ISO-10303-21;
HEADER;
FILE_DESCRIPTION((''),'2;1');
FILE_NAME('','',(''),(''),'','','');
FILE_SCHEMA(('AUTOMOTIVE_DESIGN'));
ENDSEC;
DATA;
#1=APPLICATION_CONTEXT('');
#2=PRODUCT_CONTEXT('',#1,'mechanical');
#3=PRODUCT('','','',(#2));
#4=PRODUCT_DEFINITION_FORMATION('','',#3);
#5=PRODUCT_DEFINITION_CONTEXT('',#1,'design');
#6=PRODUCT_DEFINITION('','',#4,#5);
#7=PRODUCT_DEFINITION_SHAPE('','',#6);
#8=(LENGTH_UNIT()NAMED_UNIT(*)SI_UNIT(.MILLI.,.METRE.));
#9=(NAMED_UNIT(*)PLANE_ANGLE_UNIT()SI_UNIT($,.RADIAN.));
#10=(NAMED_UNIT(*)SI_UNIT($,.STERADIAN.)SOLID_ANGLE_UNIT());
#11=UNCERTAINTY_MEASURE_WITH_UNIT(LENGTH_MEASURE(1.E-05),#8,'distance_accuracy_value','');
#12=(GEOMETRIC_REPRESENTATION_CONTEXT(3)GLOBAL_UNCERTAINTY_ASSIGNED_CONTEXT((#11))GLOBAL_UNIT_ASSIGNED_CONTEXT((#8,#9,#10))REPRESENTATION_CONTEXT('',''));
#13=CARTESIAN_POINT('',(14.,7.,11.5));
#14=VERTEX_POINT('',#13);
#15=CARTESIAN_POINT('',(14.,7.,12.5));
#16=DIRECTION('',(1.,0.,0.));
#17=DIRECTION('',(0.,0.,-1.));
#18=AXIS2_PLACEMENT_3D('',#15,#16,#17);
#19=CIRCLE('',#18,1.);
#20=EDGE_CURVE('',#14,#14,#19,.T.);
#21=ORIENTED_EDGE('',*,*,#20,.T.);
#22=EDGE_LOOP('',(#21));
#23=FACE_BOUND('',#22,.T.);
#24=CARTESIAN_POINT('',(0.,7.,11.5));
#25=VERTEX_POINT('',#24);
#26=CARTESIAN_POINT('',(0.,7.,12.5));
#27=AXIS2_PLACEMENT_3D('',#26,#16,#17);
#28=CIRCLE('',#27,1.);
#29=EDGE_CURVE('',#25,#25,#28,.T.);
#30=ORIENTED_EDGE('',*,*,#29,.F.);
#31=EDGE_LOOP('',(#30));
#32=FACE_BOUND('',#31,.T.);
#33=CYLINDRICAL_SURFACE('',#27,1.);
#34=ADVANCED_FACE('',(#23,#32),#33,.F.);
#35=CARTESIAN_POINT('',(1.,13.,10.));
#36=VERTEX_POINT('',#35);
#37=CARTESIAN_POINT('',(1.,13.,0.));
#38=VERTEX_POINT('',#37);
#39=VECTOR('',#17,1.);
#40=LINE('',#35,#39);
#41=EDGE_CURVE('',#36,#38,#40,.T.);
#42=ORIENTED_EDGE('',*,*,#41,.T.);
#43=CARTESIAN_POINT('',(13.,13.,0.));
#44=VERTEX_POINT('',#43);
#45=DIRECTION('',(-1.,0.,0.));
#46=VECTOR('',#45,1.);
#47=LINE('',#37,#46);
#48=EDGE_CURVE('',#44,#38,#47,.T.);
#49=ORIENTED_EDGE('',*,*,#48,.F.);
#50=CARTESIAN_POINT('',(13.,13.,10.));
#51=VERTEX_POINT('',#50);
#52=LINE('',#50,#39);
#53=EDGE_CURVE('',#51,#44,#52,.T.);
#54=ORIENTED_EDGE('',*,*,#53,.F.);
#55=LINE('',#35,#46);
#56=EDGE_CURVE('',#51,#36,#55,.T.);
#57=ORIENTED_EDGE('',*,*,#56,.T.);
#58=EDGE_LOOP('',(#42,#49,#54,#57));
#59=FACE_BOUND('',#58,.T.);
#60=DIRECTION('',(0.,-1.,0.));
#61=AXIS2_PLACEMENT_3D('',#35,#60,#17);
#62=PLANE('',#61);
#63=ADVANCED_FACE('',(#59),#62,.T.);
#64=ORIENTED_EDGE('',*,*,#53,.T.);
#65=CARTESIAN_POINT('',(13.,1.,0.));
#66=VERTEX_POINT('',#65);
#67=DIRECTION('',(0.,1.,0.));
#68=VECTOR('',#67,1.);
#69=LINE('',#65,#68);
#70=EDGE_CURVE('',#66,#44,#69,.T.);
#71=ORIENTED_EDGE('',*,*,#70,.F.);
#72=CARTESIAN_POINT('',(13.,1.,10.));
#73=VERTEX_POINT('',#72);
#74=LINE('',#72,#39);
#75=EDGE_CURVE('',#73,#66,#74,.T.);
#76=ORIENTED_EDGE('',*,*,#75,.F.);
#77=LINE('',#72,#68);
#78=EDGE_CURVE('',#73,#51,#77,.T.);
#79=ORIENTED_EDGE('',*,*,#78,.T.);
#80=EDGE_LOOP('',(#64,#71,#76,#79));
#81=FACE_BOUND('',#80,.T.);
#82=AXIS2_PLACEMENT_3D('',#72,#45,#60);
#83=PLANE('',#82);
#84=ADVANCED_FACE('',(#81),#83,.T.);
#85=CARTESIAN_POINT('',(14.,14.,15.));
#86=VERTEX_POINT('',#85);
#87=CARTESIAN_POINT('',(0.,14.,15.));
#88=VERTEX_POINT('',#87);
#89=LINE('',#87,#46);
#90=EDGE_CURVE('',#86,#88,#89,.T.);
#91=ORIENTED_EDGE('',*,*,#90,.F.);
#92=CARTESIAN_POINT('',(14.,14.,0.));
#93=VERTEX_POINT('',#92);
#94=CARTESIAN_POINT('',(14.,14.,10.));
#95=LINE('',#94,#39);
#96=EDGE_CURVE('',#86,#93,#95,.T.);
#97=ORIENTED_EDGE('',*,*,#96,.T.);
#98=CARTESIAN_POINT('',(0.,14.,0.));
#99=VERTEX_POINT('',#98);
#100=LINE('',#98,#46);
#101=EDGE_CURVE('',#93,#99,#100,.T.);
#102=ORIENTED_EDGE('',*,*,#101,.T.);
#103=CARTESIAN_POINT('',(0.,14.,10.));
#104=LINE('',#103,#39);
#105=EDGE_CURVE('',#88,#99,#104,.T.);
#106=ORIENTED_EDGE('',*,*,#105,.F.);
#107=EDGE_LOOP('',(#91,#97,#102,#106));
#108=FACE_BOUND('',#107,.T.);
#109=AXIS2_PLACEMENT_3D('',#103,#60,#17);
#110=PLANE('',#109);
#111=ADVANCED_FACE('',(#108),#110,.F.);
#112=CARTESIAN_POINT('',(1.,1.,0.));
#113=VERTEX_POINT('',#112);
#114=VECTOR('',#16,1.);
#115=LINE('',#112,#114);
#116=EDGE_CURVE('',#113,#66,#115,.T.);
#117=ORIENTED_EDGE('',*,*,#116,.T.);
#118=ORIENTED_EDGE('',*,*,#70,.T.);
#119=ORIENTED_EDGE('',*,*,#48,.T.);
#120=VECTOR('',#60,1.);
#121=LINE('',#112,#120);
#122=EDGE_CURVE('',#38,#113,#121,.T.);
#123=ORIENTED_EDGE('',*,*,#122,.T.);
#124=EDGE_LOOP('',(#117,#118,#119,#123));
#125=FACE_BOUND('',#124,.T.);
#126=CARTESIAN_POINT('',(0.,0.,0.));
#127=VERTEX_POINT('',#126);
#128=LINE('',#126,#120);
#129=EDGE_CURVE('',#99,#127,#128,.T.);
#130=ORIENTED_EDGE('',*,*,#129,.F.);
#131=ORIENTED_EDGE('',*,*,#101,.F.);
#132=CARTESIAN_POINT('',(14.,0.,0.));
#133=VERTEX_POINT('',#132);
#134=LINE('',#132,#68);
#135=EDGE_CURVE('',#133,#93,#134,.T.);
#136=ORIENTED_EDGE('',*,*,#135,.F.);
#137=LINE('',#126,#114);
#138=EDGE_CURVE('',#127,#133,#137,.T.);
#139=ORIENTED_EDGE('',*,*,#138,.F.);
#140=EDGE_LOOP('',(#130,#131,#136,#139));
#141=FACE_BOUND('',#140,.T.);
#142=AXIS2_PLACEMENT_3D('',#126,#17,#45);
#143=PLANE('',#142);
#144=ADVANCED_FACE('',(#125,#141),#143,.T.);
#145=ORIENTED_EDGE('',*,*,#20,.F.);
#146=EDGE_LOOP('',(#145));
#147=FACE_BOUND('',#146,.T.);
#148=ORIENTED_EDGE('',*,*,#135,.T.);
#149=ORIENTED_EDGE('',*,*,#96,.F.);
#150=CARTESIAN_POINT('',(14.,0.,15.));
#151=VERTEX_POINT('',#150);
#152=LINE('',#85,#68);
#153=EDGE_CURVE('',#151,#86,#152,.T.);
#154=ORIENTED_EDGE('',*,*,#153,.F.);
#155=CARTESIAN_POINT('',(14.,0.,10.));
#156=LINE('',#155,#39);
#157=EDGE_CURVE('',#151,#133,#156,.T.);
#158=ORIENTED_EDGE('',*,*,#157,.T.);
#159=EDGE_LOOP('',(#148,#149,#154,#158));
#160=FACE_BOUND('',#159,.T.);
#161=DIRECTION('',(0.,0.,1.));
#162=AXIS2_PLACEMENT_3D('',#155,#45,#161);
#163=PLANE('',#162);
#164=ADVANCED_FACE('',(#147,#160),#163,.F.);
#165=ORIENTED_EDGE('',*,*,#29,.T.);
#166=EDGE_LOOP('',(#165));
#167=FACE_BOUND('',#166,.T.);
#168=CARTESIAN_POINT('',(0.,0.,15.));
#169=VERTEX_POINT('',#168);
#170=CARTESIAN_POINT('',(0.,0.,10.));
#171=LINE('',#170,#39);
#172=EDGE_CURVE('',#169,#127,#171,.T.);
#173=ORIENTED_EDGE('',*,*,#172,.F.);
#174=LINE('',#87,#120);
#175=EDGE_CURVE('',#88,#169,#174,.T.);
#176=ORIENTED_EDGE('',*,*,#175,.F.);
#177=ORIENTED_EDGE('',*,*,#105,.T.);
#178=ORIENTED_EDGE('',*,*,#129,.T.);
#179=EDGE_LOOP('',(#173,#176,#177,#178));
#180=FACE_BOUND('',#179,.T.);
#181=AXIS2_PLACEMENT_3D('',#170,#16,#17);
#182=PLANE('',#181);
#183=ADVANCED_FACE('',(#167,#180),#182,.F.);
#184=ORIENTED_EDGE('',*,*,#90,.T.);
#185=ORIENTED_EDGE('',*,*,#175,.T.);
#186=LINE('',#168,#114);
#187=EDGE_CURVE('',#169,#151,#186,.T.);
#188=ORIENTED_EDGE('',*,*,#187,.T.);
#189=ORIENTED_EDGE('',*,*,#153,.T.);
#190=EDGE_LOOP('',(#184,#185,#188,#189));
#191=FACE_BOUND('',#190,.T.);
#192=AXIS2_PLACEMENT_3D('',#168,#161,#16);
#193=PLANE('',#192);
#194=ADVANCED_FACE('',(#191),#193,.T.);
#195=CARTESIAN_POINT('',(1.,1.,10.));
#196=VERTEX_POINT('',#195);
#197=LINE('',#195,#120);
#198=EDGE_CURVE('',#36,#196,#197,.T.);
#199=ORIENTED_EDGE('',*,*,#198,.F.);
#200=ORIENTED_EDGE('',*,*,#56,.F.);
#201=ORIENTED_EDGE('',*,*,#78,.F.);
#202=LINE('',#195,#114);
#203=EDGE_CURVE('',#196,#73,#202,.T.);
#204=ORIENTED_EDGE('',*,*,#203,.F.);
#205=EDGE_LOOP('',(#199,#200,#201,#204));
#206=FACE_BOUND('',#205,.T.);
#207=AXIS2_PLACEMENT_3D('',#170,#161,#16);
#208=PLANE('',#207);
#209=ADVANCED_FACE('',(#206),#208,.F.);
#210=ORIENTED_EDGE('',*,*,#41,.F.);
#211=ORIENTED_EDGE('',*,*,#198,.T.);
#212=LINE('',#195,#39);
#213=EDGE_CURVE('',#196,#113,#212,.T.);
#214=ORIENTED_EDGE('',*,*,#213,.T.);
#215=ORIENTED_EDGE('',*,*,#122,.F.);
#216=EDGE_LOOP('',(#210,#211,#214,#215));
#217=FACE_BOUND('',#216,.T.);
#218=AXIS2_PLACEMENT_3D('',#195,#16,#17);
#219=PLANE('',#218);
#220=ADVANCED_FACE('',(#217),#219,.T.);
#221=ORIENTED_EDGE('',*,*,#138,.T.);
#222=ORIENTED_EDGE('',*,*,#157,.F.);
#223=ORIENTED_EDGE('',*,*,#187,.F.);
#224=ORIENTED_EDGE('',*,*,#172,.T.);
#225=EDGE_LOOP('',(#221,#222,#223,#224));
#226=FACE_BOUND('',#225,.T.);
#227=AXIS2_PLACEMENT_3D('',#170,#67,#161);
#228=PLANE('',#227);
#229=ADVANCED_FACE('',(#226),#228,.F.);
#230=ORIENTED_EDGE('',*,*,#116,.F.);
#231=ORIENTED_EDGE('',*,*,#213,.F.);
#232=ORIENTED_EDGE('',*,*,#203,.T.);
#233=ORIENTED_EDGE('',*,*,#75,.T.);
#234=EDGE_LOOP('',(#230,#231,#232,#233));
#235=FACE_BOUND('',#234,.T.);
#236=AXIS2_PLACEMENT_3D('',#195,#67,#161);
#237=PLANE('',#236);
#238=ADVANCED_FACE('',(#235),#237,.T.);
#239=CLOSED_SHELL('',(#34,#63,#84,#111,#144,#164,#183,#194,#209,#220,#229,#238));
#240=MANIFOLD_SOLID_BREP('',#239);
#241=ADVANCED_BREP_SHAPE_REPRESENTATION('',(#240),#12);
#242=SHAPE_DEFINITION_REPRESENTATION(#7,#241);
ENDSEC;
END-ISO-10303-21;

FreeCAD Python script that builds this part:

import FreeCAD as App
import Part
import Sketcher
Q = App.Units.Quantity


def add_polygon(sketch, points):
    """Adds a closed chain of lines whose ends are joined by coincident constraints."""
    first, n = sketch.GeometryCount, len(points)
    for a, b in zip(points, points[1:] + points[:1]):
        sketch.addGeometry(Part.LineSegment(App.Vector(*a, 0), App.Vector(*b, 0)), False)
    for i in range(n):
        sketch.addConstraint(Sketcher.Constraint("Coincident", first + i, 2, first + (i + 1) % n, 1))

doc = App.newDocument("Part")
params = doc.addObject("Spreadsheet::Sheet", "Params")
for row, (alias, value) in enumerate([
    ("sketch1_width", "14 mm"),
    ("sketch1_width2", "12 mm"),
    ("pad1_length", "10 mm"),
    ("sketch2_width", "14 mm"),
    ("pad2_length", "5 mm"),
    ("sketch3_diameter", "2 mm"),
    ("pocket1_length", "14 mm"),
], start=1):
    params.set(f"A{row}", alias)
    params.set(f"B{row}", "=" + value)
    params.setAlias(f"B{row}", alias)

body = doc.addObject("PartDesign::Body", "Body")

# Sketch on XY plane
sketch1 = body.newObject("Sketcher::SketchObject", "Sketch")
sketch1.AttachmentSupport = (doc.getObject("XY_Plane"), [""])
sketch1.MapMode = "FlatFace"
add_polygon(sketch1, [(0, 14), (0, 0), (14, 0), (14, 14)])  # lines 0-3
add_polygon(sketch1, [(13, 1), (1, 1), (1, 13), (13, 13)])  # lines 4-7
sketch1.addConstraint([
    Sketcher.Constraint("Vertical", 0),
    Sketcher.Constraint("Horizontal", 1),
    Sketcher.Constraint("Vertical", 2),
    Sketcher.Constraint("Horizontal", 3),
    Sketcher.Constraint("Horizontal", 4),
    Sketcher.Constraint("Vertical", 5),
    Sketcher.Constraint("Horizontal", 6),
    Sketcher.Constraint("Vertical", 7),
    Sketcher.Constraint("Coincident", 0, 2, -1, 1),
    Sketcher.Constraint("Equal", 3, 0),
    Sketcher.Constraint("Equal", 6, 5),
    Sketcher.Constraint("DistanceX", 1, 1, 1, 2, Q("14 mm")),
    Sketcher.Constraint("DistanceX", 4, 2, 4, 1, Q("12 mm")),
    Sketcher.Constraint("DistanceX", -1, 1, 4, 2, Q("1 mm")),
    Sketcher.Constraint("DistanceY", -1, 1, 4, 2, Q("1 mm")),
])
sketch1.setExpression("Constraints[19]", "Params.sketch1_width")
sketch1.setExpression("Constraints[20]", "Params.sketch1_width2")
pad1 = body.newObject("PartDesign::Pad", "Pad")
pad1.Profile = sketch1
pad1.setExpression("Length", "Params.pad1_length")

# Sketch on XY plane
sketch2 = body.newObject("Sketcher::SketchObject", "Sketch001")
sketch2.AttachmentSupport = (doc.getObject("XY_Plane"), [""])
sketch2.MapMode = "FlatFace"
sketch2.AttachmentOffset = App.Placement(App.Vector(0, 0, 10), App.Rotation())
add_polygon(sketch2, [(0, 14), (0, 0), (14, 0), (14, 14)])  # lines 0-3
sketch2.addConstraint([
    Sketcher.Constraint("Vertical", 0),
    Sketcher.Constraint("Horizontal", 1),
    Sketcher.Constraint("Vertical", 2),
    Sketcher.Constraint("Horizontal", 3),
    Sketcher.Constraint("Coincident", 0, 2, -1, 1),
    Sketcher.Constraint("Equal", 3, 0),
    Sketcher.Constraint("DistanceX", 1, 1, 1, 2, Q("14 mm")),
])
sketch2.setExpression("Constraints[10]", "Params.sketch2_width")
pad2 = body.newObject("PartDesign::Pad", "Pad001")
pad2.Profile = sketch2
pad2.setExpression("Length", "Params.pad2_length")

# Sketch on YZ plane
sketch3 = body.newObject("Sketcher::SketchObject", "Sketch002")
sketch3.AttachmentSupport = (doc.getObject("YZ_Plane"), [""])
sketch3.MapMode = "FlatFace"
sketch3.AttachmentOffset = App.Placement(App.Vector(0, 0, 14), App.Rotation())
sketch3.addGeometry(Part.Circle(App.Vector(7, 12.5, 0), App.Vector(0, 0, 1), 1), False)
sketch3.addConstraint([
    Sketcher.Constraint("Diameter", 0, Q("2 mm")),
    Sketcher.Constraint("DistanceX", -1, 1, 0, 3, Q("7 mm")),
    Sketcher.Constraint("DistanceY", -1, 1, 0, 3, Q("12.5 mm")),
])
sketch3.setExpression("Constraints[0]", "Params.sketch3_diameter")
pocket1 = body.newObject("PartDesign::Pocket", "Pocket")
pocket1.Profile = sketch3
pocket1.setExpression("Length", "Params.pocket1_length")

doc.recompute()
